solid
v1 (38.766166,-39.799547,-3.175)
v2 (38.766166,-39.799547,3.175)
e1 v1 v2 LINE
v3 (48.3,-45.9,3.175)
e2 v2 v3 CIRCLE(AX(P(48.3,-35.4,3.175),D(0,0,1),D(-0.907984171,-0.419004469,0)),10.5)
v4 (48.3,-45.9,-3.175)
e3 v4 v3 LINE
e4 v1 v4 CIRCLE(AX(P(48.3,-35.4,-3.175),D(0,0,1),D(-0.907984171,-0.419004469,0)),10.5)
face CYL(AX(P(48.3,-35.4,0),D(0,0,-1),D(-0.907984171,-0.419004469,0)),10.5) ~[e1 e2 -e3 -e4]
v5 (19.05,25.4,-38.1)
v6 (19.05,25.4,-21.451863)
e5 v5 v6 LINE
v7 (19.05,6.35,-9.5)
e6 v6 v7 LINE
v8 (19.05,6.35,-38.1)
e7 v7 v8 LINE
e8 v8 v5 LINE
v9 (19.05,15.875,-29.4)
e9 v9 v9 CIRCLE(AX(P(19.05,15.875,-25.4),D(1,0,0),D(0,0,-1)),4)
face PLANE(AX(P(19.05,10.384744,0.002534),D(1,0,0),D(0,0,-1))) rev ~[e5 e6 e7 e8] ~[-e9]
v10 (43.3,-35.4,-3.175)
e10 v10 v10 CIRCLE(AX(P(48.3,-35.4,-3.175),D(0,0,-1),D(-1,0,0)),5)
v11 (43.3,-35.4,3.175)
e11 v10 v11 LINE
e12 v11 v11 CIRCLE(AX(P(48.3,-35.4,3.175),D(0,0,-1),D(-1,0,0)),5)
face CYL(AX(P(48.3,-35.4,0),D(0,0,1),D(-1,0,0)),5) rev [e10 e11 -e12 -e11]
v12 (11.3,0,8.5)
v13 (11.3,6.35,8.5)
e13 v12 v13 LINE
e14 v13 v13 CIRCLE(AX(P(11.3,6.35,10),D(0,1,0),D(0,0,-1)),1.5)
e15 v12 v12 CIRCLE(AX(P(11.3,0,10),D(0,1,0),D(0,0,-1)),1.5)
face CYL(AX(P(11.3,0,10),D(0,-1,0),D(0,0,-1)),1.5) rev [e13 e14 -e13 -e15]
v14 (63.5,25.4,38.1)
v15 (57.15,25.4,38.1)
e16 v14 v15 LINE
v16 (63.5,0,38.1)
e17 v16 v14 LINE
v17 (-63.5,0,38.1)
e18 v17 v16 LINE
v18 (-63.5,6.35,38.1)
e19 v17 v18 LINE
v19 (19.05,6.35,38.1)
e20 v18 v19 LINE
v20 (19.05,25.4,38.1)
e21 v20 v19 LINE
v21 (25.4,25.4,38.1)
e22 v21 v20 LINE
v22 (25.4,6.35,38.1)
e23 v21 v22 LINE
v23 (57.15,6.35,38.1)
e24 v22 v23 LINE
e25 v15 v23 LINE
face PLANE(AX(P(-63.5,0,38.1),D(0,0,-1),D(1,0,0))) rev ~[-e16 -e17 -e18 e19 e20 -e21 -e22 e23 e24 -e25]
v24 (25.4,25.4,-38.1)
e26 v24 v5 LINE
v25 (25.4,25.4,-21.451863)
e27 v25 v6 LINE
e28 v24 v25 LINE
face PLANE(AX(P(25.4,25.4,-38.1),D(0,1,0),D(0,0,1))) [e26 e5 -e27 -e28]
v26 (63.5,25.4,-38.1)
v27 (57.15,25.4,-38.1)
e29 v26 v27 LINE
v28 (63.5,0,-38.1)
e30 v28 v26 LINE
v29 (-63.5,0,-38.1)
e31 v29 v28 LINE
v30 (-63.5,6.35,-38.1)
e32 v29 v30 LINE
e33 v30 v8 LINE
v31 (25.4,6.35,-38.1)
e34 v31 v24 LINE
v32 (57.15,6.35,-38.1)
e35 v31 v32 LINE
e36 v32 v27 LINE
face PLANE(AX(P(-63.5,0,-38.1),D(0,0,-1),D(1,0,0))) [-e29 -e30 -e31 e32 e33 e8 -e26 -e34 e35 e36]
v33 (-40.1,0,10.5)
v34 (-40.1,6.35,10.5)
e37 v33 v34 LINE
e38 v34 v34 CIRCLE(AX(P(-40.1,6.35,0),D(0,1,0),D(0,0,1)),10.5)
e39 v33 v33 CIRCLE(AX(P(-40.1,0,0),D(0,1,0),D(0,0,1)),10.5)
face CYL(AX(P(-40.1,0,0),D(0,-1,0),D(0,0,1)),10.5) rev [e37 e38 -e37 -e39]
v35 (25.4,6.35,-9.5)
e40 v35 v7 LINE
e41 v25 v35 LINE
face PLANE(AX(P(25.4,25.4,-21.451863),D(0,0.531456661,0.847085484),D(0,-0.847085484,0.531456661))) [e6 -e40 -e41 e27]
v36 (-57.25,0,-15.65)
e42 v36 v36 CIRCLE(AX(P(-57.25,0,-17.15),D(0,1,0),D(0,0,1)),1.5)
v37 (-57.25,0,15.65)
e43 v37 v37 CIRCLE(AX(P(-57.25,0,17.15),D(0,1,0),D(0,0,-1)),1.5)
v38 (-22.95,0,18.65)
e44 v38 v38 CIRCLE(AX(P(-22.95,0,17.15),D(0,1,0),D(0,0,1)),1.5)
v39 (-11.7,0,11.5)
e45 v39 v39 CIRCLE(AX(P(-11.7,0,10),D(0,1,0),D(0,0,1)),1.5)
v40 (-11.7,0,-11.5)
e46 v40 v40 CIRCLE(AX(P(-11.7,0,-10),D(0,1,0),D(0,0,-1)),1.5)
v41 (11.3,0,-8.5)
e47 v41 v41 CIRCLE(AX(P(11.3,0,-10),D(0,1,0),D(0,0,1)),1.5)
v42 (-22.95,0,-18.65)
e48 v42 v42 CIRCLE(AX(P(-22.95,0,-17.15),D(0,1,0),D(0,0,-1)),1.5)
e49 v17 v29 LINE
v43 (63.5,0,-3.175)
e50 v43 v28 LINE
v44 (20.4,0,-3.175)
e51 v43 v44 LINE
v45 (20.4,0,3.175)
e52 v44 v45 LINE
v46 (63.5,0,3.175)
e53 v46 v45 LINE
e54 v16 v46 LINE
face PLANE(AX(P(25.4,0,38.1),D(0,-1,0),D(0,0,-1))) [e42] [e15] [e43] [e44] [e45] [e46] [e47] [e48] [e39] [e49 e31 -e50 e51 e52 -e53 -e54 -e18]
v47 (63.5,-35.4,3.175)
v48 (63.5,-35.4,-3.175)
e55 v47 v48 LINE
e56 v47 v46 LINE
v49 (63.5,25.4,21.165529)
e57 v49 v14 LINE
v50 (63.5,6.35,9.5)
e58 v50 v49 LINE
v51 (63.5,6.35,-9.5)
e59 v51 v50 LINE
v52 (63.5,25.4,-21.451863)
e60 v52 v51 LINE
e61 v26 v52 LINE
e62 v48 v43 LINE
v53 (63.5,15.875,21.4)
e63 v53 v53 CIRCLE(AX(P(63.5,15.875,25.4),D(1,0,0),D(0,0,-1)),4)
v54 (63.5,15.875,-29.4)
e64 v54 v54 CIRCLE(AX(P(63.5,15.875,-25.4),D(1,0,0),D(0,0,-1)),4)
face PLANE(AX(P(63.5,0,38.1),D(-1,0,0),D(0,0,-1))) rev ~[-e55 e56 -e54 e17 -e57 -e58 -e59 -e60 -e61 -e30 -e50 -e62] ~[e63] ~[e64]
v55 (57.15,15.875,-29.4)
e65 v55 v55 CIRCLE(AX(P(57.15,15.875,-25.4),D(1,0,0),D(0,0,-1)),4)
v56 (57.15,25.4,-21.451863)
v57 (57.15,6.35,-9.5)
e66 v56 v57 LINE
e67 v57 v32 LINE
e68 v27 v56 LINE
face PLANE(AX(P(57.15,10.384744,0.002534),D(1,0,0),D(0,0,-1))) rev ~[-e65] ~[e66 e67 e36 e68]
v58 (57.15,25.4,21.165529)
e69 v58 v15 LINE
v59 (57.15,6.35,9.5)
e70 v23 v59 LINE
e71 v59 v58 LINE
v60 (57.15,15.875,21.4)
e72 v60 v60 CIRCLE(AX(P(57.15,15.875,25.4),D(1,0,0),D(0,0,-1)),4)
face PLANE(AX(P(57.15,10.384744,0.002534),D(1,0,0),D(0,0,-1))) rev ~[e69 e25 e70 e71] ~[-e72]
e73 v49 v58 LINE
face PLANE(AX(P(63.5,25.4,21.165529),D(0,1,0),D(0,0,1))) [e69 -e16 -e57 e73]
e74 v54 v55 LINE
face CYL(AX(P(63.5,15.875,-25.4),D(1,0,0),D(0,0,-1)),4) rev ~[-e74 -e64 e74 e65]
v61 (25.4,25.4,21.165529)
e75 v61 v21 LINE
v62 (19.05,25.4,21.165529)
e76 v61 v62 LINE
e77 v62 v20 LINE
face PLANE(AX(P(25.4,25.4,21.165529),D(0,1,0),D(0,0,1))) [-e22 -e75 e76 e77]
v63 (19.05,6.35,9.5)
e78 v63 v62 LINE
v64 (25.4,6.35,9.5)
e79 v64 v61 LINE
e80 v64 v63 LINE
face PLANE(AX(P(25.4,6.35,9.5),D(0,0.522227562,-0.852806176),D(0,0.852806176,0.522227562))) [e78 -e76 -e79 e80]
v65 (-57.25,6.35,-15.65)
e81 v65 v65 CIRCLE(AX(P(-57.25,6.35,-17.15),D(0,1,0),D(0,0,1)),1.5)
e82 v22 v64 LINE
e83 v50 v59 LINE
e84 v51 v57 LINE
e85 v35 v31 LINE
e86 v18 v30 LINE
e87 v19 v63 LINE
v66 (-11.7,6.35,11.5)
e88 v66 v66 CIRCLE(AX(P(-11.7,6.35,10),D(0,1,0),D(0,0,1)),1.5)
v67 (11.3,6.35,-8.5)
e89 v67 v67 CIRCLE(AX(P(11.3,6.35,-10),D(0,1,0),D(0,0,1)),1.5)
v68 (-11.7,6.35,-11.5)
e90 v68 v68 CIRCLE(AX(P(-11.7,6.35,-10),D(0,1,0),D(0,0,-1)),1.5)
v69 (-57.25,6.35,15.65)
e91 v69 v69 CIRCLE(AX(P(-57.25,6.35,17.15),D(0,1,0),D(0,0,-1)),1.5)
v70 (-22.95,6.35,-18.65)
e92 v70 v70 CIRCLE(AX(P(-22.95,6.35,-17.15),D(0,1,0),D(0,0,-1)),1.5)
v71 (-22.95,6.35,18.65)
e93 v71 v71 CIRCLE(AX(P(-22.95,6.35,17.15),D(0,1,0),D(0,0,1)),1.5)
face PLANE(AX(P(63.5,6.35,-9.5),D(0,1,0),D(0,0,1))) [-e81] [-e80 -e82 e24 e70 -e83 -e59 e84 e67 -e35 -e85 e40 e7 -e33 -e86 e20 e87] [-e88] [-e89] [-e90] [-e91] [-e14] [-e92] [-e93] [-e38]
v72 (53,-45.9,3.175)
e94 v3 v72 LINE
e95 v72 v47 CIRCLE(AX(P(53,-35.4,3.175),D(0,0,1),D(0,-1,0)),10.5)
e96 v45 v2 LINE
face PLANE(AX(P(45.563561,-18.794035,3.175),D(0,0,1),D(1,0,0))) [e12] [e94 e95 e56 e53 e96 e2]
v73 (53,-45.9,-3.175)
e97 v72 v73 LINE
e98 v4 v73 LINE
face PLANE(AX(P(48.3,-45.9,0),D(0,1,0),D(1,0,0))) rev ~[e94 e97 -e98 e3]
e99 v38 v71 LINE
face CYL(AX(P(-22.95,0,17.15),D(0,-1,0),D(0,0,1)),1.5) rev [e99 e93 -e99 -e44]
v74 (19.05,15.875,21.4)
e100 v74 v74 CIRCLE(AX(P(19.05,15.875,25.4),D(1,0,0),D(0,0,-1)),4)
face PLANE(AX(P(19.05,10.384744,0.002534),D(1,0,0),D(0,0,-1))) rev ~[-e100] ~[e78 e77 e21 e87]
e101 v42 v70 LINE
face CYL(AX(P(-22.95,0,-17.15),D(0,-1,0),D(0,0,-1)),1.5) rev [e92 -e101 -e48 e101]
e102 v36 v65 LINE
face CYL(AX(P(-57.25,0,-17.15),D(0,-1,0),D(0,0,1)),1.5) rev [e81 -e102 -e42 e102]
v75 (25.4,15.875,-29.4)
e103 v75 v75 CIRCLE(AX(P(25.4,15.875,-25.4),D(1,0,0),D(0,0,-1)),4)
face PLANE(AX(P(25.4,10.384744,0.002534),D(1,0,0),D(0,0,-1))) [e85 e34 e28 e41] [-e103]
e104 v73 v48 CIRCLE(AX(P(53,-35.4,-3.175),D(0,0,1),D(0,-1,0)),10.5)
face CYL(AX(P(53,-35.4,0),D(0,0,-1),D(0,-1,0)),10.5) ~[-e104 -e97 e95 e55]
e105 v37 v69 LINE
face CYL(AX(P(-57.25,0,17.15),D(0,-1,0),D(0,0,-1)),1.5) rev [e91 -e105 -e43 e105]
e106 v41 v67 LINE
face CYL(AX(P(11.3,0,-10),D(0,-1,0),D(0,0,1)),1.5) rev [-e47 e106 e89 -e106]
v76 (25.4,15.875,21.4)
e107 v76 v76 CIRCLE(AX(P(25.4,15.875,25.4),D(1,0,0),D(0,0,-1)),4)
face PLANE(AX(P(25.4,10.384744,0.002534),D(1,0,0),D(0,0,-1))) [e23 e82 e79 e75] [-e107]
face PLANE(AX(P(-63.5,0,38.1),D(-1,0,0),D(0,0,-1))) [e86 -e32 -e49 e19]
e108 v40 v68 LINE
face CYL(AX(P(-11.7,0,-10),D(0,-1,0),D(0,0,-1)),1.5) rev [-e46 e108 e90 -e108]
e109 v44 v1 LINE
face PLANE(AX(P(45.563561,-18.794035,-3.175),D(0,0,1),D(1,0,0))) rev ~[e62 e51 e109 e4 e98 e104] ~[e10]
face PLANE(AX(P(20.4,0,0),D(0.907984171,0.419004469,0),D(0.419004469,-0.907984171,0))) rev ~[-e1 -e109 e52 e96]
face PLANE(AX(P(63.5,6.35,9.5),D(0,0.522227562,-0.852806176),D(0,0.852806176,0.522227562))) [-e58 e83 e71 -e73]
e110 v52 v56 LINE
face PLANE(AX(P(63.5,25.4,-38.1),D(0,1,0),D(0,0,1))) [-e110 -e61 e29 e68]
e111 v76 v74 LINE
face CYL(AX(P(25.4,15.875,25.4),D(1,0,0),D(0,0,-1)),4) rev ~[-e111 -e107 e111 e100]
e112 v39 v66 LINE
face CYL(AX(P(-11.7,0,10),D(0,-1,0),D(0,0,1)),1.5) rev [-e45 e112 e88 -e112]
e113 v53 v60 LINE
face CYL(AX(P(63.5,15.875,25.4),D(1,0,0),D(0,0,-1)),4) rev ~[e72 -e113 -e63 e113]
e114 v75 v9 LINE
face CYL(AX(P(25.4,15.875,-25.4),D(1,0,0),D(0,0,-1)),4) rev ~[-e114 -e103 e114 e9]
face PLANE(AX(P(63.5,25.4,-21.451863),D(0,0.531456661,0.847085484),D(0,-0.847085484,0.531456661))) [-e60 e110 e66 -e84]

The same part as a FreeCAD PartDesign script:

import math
import FreeCAD as App
import Part
import Sketcher

doc = App.newDocument("Part")
body = doc.addObject("PartDesign::Body", "Body")

sketch1 = body.newObject("Sketcher::SketchObject", "Sketch")
sketch1.AttachmentSupport = (doc.getObject("XZ_Plane"), [""])
sketch1.MapMode = "FlatFace"
sketch1.addGeometry([
    Part.LineSegment(App.Vector(-63.5, -38.1, 0), App.Vector(-63.5, 38.1, 0)),
    Part.LineSegment(App.Vector(-63.5, 38.1, 0), App.Vector(63.5, 38.1, 0)),
    Part.LineSegment(App.Vector(63.5, 38.1, 0), App.Vector(63.5, -38.1, 0)),
    Part.LineSegment(App.Vector(63.5, -38.1, 0), App.Vector(-63.5, -38.1, 0)),
    Part.Circle(App.Vector(-57.2, 17.1, 0), App.Vector(0, 0, 1), 1.5),
    Part.Circle(App.Vector(-40.1, 0, 0), App.Vector(0, 0, 1), 10.5),
    Part.Circle(App.Vector(-22.9, 17.1, 0), App.Vector(0, 0, 1), 1.5),
    Part.Circle(App.Vector(-11.7, 10, 0), App.Vector(0, 0, 1), 1.5),
    Part.Circle(App.Vector(11.3, 10, 0), App.Vector(0, 0, 1), 1.5),
    Part.Circle(App.Vector(-57.2, -17.1, 0), App.Vector(0, 0, 1), 1.5),
    Part.Circle(App.Vector(-11.7, -10, 0), App.Vector(0, 0, 1), 1.5),
    Part.Circle(App.Vector(-22.9, -17.1, 0), App.Vector(0, 0, 1), 1.5),
    Part.Circle(App.Vector(11.3, -10, 0), App.Vector(0, 0, 1), 1.5),
], False)
sketch1.addConstraint([
    Sketcher.Constraint("Coincident", 0, 2, 1, 1),
    Sketcher.Constraint("Coincident", 1, 2, 2, 1),
    Sketcher.Constraint("Coincident", 2, 2, 3, 1),
    Sketcher.Constraint("Coincident", 3, 2, 0, 1),
    Sketcher.Constraint("Vertical", 0),
    Sketcher.Constraint("Horizontal", 1),
    Sketcher.Constraint("Vertical", 2),
    Sketcher.Constraint("Horizontal", 3),
    Sketcher.Constraint("Equal", 4, 6),
    Sketcher.Constraint("Equal", 6, 7),
    Sketcher.Constraint("Equal", 7, 8),
    Sketcher.Constraint("Equal", 8, 9),
    Sketcher.Constraint("Equal", 9, 10),
    Sketcher.Constraint("Equal", 10, 11),
    Sketcher.Constraint("Equal", 11, 12),
    Sketcher.Constraint("Symmetric", 0, 2, 2, 2, -1, 1),
    Sketcher.Constraint("Symmetric", 4, 3, 9, 3, -1),
    Sketcher.Constraint("Symmetric", 7, 3, 10, 3, -1),
    Sketcher.Constraint("Symmetric", 6, 3, 11, 3, -1),
    Sketcher.Constraint("Symmetric", 8, 3, 12, 3, -1),
    Sketcher.Constraint("PointOnObject", 5, 3, -1),
    Sketcher.Constraint("Horizontal", 4, 3, 6, 3),
    Sketcher.Constraint("Horizontal", 7, 3, 8, 3),
    Sketcher.Constraint("Diameter", 4, 3.0),
    Sketcher.Constraint("Diameter", 5, 21.0),
    Sketcher.Constraint("DistanceX", 1, 1, 1, 2, 127.0),
    Sketcher.Constraint("DistanceY", 0, 1, 0, 2, 76.2),
    Sketcher.Constraint("DistanceY", -1, 1, 7, 3, 10.0),
    Sketcher.Constraint("DistanceX", 7, 3, 8, 3, 23.0),
    Sketcher.Constraint("DistanceX", 5, 3, -1, 1, 40.1),
    Sketcher.Constraint("DistanceX", 7, 3, -1, 1, 11.7),
    Sketcher.Constraint("DistanceX", 4, 3, 6, 3, 34.3),
    Sketcher.Constraint("DistanceY", 9, 3, 4, 3, 34.3),
    Sketcher.Constraint("DistanceX", 4, 3, -1, 1, 57.25),
])
pad1 = body.newObject("PartDesign::Pad", "Pad")
pad1.Profile = sketch1
pad1.Length = 6.35
pad1.Reversed = True

sketch2 = body.newObject("Sketcher::SketchObject", "Sketch001")
sketch2.AttachmentSupport = (doc.getObject("YZ_Plane"), [""])
sketch2.MapMode = "FlatFace"
sketch2.AttachmentOffset = App.Placement(App.Vector(0, 0, 63.5), App.Rotation())
sketch2.addGeometry([
    Part.LineSegment(App.Vector(0, 38.1, 0), App.Vector(0, -38.1, 0)),
    Part.LineSegment(App.Vector(0, -38.1, 0), App.Vector(25.4, -38.1, 0)),
    Part.LineSegment(App.Vector(25.4, -38.1, 0), App.Vector(25.4, -21.5, 0)),
    Part.LineSegment(App.Vector(25.4, -21.5, 0), App.Vector(6.3, -9.5, 0)),
    Part.LineSegment(App.Vector(6.3, -9.5, 0), App.Vector(6.3, 9.5, 0)),
    Part.LineSegment(App.Vector(6.3, 9.5, 0), App.Vector(25.4, 21.2, 0)),
    Part.LineSegment(App.Vector(25.4, 21.2, 0), App.Vector(25.4, 38.1, 0)),
    Part.LineSegment(App.Vector(25.4, 38.1, 0), App.Vector(0, 38.1, 0)),
    Part.Circle(App.Vector(15.9, 25.4, 0), App.Vector(0, 0, 1), 4),
    Part.Circle(App.Vector(15.9, -25.4, 0), App.Vector(0, 0, 1), 4),
], False)
sketch2.addConstraint([
    Sketcher.Constraint("Coincident", 0, 2, 1, 1),
    Sketcher.Constraint("Coincident", 1, 2, 2, 1),
    Sketcher.Constraint("Coincident", 2, 2, 3, 1),
    Sketcher.Constraint("Coincident", 3, 2, 4, 1),
    Sketcher.Constraint("Coincident", 4, 2, 5, 1),
    Sketcher.Constraint("Coincident", 5, 2, 6, 1),
    Sketcher.Constraint("Coincident", 6, 2, 7, 1),
    Sketcher.Constraint("Coincident", 7, 2, 0, 1),
    Sketcher.Constraint("Vertical", 0),
    Sketcher.Constraint("Horizontal", 1),
    Sketcher.Constraint("Vertical", 2),
    Sketcher.Constraint("Vertical", 4),
    Sketcher.Constraint("Vertical", 6),
    Sketcher.Constraint("Horizontal", 7),
    Sketcher.Constraint("Equal", 8, 9),
    Sketcher.Constraint("Symmetric", 0, 2, 7, 2, -1, 1),
    Sketcher.Constraint("Symmetric", 8, 3, 9, 3, -1),
    Sketcher.Constraint("Vertical", 2, 2, 5, 2),
    Sketcher.Constraint("Diameter", 8, 8.0),
    Sketcher.Constraint("DistanceY", 4, 1, 4, 2, 19.0),
    Sketcher.Constraint("DistanceX", 1, 1, 1, 2, 25.4),
    Sketcher.Constraint("DistanceY", 0, 2, 0, 1, 76.2),
    Sketcher.Constraint("DistanceY", -1, 1, 8, 3, 25.4),
    Sketcher.Constraint("DistanceY", 3, 2, -1, 1, 9.5),
    Sketcher.Constraint("DistanceX", -1, 1, 3, 2, 6.35),
    Sketcher.Constraint("DistanceX", -1, 1, 8, 3, 15.875),
    Sketcher.Constraint("DistanceY", 6, 1, 6, 2, 16.934471),
    Sketcher.Constraint("DistanceY", 2, 1, 2, 2, 16.648137),
])
pad2 = body.newObject("PartDesign::Pad", "Pad001")
pad2.Profile = sketch2
pad2.Length = 6.35
pad2.Reversed = True
doc.recompute()

linearpattern = body.newObject("PartDesign::LinearPattern", "LinearPattern")
linearpattern.Originals = [pad2]
linearpattern.Direction = (doc.getObject("X_Axis"), [""])
linearpattern.Mode = "offset"
linearpattern.Offset = 38.1
linearpattern.Occurrences = 2
linearpattern.Reversed = True
body.Tip = linearpattern

sketch3 = body.newObject("Sketcher::SketchObject", "Sketch002")
sketch3.AttachmentSupport = (doc.getObject("XY_Plane"), [""])
sketch3.MapMode = "FlatFace"
sketch3.addGeometry([
    Part.LineSegment(App.Vector(20.4, 0, 0), App.Vector(63.5, 0, 0)),
    Part.LineSegment(App.Vector(63.5, 0, 0), App.Vector(63.5, -35.4, 0)),
    Part.ArcOfCircle(Part.Circle(App.Vector(53, -35.4, 0), App.Vector(0, 0, 1), 10.5), math.radians(-90), math.radians(0)),
    Part.LineSegment(App.Vector(53, -45.9, 0), App.Vector(48.3, -45.9, 0)),
    Part.ArcOfCircle(Part.Circle(App.Vector(48.3, -35.4, 0), App.Vector(0, 0, 1), 10.5), math.radians(-155), math.radians(-90)),
    Part.LineSegment(App.Vector(38.8, -39.8, 0), App.Vector(20.4, 0, 0)),
    Part.Circle(App.Vector(48.3, -35.4, 0), App.Vector(0, 0, 1), 5),
], False)
sketch3.addConstraint([
    Sketcher.Constraint("Coincident", 0, 2, 1, 1),
    Sketcher.Constraint("Tangent", 1, 2, 2, 2),
    Sketcher.Constraint("Tangent", 2, 1, 3, 1),
    Sketcher.Constraint("Tangent", 3, 2, 4, 2),
    Sketcher.Constraint("Tangent", 4, 1, 5, 1),
    Sketcher.Constraint("Coincident", 5, 2, 0, 1),
    Sketcher.Constraint("Horizontal", 0),
    Sketcher.Constraint("Vertical", 1),
    Sketcher.Constraint("Horizontal", 3),
    Sketcher.Constraint("Coincident", 6, 3, 4, 3),
    Sketcher.Constraint("Equal", 2, 4),
    Sketcher.Constraint("PointOnObject", 0, 2, -1),
    Sketcher.Constraint("Diameter", 6, 10.0),
    Sketcher.Constraint("Radius", 2, 10.5),
    Sketcher.Constraint("DistanceX", 0, 1, 0, 2, 43.1),
    Sketcher.Constraint("DistanceX", 3, 2, 3, 1, 4.7),
    Sketcher.Constraint("DistanceY", 1, 2, 1, 1, 35.4),
    Sketcher.Constraint("DistanceX", -1, 1, 2, 3, 53.0),
])
pad3 = body.newObject("PartDesign::Pad", "Pad002")
pad3.Profile = sketch3
pad3.Length = 6.35
pad3.Midplane = True

doc.recompute()
